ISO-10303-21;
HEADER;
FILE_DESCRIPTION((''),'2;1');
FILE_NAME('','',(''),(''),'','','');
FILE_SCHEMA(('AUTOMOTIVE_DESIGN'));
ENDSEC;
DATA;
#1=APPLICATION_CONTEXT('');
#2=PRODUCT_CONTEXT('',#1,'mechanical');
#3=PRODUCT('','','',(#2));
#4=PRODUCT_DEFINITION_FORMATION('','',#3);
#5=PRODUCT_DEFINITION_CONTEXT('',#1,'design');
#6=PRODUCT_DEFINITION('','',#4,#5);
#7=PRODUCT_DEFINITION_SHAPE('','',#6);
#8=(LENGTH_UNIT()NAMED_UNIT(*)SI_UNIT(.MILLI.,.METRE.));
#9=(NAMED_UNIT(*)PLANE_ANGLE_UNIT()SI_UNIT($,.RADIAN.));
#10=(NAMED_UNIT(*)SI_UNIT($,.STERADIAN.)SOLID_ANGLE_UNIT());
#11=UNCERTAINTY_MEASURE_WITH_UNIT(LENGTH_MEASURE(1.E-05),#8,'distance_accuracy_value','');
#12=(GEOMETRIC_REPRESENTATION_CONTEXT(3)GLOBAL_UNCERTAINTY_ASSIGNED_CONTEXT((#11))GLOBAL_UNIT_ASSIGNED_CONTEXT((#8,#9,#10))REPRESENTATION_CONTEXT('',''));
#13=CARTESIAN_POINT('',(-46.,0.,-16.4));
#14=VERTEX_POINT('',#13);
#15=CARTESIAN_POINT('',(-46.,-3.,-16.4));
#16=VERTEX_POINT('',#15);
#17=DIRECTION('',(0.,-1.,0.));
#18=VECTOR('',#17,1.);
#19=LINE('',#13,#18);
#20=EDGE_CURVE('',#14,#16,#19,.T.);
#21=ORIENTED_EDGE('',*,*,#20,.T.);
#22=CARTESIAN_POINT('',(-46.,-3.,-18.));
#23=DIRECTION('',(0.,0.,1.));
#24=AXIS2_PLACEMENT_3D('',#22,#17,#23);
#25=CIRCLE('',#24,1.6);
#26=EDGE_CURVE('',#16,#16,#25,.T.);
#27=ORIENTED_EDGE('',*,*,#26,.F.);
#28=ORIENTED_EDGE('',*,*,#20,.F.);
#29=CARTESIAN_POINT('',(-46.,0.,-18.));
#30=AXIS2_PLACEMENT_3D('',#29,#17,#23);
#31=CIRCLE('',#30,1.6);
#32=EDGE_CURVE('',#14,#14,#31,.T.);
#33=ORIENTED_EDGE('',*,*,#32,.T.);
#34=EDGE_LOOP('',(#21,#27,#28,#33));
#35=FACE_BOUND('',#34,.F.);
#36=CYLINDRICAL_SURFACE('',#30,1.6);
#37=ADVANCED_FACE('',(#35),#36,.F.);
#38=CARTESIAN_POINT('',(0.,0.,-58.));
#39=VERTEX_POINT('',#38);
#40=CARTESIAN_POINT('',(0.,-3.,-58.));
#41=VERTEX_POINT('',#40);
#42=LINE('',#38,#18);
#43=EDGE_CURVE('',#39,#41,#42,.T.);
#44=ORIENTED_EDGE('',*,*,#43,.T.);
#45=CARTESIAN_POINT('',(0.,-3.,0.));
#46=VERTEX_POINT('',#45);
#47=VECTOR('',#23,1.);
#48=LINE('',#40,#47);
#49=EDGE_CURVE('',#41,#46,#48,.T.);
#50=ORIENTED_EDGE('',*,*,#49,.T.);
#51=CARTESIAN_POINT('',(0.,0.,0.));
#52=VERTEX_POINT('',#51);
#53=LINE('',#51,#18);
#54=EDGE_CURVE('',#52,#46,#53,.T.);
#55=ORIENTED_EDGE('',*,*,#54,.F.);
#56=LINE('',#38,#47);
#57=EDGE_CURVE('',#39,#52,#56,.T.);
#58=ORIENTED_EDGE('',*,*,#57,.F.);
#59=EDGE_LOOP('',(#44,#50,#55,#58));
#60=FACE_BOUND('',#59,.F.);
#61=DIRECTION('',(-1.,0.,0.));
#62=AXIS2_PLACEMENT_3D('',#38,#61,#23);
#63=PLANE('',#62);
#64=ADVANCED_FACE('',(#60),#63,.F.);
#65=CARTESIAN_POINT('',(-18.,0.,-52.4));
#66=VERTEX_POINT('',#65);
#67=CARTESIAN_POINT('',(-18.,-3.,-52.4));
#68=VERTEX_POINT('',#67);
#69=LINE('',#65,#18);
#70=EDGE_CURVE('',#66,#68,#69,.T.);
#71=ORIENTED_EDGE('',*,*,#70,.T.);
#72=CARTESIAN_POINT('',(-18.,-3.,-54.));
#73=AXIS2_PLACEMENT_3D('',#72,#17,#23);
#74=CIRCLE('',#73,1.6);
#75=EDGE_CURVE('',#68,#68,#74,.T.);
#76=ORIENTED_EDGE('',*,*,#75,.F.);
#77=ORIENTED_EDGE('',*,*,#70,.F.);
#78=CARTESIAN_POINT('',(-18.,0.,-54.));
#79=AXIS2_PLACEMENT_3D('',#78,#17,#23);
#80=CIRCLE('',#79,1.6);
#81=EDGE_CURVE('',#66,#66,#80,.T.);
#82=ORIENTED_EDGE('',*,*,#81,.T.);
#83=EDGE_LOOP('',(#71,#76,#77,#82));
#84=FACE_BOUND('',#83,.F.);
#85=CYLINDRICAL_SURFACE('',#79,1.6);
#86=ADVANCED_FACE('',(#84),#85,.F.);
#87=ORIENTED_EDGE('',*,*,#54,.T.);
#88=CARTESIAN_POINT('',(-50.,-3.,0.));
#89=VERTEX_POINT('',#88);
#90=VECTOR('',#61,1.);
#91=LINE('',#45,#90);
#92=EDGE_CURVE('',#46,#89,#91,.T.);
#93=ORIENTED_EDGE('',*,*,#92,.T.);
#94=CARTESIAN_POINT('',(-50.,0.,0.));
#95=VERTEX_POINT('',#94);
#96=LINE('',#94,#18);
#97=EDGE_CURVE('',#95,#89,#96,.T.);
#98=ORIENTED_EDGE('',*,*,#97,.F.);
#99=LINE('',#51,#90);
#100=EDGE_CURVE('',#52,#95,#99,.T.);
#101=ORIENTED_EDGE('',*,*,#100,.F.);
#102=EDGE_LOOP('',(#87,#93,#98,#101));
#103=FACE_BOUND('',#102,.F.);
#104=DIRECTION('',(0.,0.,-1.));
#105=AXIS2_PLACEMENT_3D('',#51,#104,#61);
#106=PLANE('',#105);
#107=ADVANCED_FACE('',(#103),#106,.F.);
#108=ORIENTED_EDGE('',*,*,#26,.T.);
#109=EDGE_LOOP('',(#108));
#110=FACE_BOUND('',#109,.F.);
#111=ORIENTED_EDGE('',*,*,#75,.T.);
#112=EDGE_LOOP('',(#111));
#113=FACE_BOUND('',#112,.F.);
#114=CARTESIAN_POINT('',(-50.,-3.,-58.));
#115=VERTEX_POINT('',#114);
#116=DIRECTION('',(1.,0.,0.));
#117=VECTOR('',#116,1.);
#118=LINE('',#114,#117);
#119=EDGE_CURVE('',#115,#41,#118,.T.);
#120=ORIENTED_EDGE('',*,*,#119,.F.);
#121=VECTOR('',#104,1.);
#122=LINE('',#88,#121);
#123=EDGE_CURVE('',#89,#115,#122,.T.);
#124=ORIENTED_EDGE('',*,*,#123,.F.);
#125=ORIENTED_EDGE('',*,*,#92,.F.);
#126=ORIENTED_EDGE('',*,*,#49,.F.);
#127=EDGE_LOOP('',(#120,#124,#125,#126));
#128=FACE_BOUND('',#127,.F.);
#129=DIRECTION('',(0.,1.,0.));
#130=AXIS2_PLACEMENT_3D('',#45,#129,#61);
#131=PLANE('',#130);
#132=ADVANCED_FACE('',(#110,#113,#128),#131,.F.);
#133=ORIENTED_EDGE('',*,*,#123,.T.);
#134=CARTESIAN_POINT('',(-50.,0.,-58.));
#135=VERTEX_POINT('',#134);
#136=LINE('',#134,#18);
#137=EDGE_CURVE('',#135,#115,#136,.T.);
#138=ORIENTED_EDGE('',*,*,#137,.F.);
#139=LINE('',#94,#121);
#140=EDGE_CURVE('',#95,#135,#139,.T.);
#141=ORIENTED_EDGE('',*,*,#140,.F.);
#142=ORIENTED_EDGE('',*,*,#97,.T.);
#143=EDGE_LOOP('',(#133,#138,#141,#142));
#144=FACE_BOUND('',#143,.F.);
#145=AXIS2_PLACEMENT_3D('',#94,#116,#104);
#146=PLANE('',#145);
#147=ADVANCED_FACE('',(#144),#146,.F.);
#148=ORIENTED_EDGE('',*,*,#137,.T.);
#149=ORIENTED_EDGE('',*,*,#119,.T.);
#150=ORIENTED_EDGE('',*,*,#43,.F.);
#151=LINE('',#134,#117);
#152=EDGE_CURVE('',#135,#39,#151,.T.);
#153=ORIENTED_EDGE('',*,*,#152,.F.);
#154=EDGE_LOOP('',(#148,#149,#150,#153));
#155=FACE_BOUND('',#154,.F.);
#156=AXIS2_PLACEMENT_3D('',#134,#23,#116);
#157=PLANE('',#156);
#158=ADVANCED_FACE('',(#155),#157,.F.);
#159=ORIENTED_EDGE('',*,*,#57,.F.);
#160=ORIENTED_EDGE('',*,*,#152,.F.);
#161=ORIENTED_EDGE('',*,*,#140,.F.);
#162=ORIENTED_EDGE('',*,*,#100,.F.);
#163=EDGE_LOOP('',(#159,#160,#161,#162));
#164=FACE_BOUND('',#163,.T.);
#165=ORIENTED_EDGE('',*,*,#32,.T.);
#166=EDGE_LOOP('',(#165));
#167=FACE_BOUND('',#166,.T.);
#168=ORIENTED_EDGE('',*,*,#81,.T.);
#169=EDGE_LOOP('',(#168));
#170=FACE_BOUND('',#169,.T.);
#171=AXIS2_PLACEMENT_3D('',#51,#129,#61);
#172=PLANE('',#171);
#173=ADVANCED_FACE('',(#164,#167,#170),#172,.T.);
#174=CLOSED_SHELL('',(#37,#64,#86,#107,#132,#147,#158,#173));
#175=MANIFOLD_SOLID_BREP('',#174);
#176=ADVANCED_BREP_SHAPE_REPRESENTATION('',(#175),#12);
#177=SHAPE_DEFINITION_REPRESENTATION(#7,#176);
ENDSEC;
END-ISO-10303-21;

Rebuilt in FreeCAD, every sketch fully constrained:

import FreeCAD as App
import Part
import Sketcher

doc = App.newDocument("Part")
body = doc.addObject("PartDesign::Body", "Body")

# Sketch on XZ plane
sketch1 = doc.addObject("Sketcher::SketchObject", "Sketch")
body.addObject(sketch1)
sketch1.AttachmentSupport = (doc.XZ_Plane, [""])
sketch1.MapMode = "FlatFace"
sketch1.addGeometry(Part.LineSegment(App.Vector(-50, 0, 0), App.Vector(0, 0, 0)), False)
sketch1.addGeometry(Part.LineSegment(App.Vector(0, 0, 0), App.Vector(0, -58, 0)), False)
sketch1.addGeometry(Part.LineSegment(App.Vector(0, -58, 0), App.Vector(-50, -58, 0)), False)
sketch1.addGeometry(Part.LineSegment(App.Vector(-50, -58, 0), App.Vector(-50, 0, 0)), False)
sketch1.addConstraint(Sketcher.Constraint("Coincident", 0, 2, 1, 1))
sketch1.addConstraint(Sketcher.Constraint("Coincident", 1, 2, 2, 1))
sketch1.addConstraint(Sketcher.Constraint("Coincident", 2, 2, 3, 1))
sketch1.addConstraint(Sketcher.Constraint("Coincident", 3, 2, 0, 1))
sketch1.addConstraint(Sketcher.Constraint("Horizontal", 0))
sketch1.addConstraint(Sketcher.Constraint("Vertical", 1))
sketch1.addConstraint(Sketcher.Constraint("Horizontal", 2))
sketch1.addConstraint(Sketcher.Constraint("Vertical", 3))
sketch1.addConstraint(Sketcher.Constraint("Coincident", 0, 2, -1, 1))
sketch1.addConstraint(Sketcher.Constraint("DistanceX", 0, 1, 0, 2, 50.0))
sketch1.addConstraint(Sketcher.Constraint("DistanceY", 1, 2, 1, 1, 58.0))
pad1 = doc.addObject("PartDesign::Pad", "Pad")
body.addObject(pad1)
pad1.Profile = sketch1
pad1.Length = 3

# Sketch on XZ plane
sketch2 = doc.addObject("Sketcher::SketchObject", "Sketch001")
body.addObject(sketch2)
sketch2.AttachmentSupport = (doc.XZ_Plane, [""])
sketch2.MapMode = "FlatFace"
sketch2.addGeometry(Part.Circle(App.Vector(-46, -18, 0), App.Vector(0, 0, 1), 1.6), False)
sketch2.addGeometry(Part.Circle(App.Vector(-18, -54, 0), App.Vector(0, 0, 1), 1.6), False)
sketch2.addConstraint(Sketcher.Constraint("Equal", 0, 1))
sketch2.addConstraint(Sketcher.Constraint("Diameter", 0, 3.2))
sketch2.addConstraint(Sketcher.Constraint("DistanceX", 0, 3, -1, 1, 46.0))
sketch2.addConstraint(Sketcher.Constraint("DistanceY", 0, 3, -1, 1, 18.0))
sketch2.addConstraint(Sketcher.Constraint("DistanceX", 1, 3, -1, 1, 18.0))
sketch2.addConstraint(Sketcher.Constraint("DistanceY", 1, 3, -1, 1, 54.0))
doc.recompute()
hole = doc.addObject("PartDesign::Hole", "Hole")
body.addObject(hole)
hole.Profile = sketch2
hole.ThreadType = "None"
hole.Diameter = 3.2
hole.DepthType = "ThroughAll"
hole.Reversed = True

doc.recompute()
